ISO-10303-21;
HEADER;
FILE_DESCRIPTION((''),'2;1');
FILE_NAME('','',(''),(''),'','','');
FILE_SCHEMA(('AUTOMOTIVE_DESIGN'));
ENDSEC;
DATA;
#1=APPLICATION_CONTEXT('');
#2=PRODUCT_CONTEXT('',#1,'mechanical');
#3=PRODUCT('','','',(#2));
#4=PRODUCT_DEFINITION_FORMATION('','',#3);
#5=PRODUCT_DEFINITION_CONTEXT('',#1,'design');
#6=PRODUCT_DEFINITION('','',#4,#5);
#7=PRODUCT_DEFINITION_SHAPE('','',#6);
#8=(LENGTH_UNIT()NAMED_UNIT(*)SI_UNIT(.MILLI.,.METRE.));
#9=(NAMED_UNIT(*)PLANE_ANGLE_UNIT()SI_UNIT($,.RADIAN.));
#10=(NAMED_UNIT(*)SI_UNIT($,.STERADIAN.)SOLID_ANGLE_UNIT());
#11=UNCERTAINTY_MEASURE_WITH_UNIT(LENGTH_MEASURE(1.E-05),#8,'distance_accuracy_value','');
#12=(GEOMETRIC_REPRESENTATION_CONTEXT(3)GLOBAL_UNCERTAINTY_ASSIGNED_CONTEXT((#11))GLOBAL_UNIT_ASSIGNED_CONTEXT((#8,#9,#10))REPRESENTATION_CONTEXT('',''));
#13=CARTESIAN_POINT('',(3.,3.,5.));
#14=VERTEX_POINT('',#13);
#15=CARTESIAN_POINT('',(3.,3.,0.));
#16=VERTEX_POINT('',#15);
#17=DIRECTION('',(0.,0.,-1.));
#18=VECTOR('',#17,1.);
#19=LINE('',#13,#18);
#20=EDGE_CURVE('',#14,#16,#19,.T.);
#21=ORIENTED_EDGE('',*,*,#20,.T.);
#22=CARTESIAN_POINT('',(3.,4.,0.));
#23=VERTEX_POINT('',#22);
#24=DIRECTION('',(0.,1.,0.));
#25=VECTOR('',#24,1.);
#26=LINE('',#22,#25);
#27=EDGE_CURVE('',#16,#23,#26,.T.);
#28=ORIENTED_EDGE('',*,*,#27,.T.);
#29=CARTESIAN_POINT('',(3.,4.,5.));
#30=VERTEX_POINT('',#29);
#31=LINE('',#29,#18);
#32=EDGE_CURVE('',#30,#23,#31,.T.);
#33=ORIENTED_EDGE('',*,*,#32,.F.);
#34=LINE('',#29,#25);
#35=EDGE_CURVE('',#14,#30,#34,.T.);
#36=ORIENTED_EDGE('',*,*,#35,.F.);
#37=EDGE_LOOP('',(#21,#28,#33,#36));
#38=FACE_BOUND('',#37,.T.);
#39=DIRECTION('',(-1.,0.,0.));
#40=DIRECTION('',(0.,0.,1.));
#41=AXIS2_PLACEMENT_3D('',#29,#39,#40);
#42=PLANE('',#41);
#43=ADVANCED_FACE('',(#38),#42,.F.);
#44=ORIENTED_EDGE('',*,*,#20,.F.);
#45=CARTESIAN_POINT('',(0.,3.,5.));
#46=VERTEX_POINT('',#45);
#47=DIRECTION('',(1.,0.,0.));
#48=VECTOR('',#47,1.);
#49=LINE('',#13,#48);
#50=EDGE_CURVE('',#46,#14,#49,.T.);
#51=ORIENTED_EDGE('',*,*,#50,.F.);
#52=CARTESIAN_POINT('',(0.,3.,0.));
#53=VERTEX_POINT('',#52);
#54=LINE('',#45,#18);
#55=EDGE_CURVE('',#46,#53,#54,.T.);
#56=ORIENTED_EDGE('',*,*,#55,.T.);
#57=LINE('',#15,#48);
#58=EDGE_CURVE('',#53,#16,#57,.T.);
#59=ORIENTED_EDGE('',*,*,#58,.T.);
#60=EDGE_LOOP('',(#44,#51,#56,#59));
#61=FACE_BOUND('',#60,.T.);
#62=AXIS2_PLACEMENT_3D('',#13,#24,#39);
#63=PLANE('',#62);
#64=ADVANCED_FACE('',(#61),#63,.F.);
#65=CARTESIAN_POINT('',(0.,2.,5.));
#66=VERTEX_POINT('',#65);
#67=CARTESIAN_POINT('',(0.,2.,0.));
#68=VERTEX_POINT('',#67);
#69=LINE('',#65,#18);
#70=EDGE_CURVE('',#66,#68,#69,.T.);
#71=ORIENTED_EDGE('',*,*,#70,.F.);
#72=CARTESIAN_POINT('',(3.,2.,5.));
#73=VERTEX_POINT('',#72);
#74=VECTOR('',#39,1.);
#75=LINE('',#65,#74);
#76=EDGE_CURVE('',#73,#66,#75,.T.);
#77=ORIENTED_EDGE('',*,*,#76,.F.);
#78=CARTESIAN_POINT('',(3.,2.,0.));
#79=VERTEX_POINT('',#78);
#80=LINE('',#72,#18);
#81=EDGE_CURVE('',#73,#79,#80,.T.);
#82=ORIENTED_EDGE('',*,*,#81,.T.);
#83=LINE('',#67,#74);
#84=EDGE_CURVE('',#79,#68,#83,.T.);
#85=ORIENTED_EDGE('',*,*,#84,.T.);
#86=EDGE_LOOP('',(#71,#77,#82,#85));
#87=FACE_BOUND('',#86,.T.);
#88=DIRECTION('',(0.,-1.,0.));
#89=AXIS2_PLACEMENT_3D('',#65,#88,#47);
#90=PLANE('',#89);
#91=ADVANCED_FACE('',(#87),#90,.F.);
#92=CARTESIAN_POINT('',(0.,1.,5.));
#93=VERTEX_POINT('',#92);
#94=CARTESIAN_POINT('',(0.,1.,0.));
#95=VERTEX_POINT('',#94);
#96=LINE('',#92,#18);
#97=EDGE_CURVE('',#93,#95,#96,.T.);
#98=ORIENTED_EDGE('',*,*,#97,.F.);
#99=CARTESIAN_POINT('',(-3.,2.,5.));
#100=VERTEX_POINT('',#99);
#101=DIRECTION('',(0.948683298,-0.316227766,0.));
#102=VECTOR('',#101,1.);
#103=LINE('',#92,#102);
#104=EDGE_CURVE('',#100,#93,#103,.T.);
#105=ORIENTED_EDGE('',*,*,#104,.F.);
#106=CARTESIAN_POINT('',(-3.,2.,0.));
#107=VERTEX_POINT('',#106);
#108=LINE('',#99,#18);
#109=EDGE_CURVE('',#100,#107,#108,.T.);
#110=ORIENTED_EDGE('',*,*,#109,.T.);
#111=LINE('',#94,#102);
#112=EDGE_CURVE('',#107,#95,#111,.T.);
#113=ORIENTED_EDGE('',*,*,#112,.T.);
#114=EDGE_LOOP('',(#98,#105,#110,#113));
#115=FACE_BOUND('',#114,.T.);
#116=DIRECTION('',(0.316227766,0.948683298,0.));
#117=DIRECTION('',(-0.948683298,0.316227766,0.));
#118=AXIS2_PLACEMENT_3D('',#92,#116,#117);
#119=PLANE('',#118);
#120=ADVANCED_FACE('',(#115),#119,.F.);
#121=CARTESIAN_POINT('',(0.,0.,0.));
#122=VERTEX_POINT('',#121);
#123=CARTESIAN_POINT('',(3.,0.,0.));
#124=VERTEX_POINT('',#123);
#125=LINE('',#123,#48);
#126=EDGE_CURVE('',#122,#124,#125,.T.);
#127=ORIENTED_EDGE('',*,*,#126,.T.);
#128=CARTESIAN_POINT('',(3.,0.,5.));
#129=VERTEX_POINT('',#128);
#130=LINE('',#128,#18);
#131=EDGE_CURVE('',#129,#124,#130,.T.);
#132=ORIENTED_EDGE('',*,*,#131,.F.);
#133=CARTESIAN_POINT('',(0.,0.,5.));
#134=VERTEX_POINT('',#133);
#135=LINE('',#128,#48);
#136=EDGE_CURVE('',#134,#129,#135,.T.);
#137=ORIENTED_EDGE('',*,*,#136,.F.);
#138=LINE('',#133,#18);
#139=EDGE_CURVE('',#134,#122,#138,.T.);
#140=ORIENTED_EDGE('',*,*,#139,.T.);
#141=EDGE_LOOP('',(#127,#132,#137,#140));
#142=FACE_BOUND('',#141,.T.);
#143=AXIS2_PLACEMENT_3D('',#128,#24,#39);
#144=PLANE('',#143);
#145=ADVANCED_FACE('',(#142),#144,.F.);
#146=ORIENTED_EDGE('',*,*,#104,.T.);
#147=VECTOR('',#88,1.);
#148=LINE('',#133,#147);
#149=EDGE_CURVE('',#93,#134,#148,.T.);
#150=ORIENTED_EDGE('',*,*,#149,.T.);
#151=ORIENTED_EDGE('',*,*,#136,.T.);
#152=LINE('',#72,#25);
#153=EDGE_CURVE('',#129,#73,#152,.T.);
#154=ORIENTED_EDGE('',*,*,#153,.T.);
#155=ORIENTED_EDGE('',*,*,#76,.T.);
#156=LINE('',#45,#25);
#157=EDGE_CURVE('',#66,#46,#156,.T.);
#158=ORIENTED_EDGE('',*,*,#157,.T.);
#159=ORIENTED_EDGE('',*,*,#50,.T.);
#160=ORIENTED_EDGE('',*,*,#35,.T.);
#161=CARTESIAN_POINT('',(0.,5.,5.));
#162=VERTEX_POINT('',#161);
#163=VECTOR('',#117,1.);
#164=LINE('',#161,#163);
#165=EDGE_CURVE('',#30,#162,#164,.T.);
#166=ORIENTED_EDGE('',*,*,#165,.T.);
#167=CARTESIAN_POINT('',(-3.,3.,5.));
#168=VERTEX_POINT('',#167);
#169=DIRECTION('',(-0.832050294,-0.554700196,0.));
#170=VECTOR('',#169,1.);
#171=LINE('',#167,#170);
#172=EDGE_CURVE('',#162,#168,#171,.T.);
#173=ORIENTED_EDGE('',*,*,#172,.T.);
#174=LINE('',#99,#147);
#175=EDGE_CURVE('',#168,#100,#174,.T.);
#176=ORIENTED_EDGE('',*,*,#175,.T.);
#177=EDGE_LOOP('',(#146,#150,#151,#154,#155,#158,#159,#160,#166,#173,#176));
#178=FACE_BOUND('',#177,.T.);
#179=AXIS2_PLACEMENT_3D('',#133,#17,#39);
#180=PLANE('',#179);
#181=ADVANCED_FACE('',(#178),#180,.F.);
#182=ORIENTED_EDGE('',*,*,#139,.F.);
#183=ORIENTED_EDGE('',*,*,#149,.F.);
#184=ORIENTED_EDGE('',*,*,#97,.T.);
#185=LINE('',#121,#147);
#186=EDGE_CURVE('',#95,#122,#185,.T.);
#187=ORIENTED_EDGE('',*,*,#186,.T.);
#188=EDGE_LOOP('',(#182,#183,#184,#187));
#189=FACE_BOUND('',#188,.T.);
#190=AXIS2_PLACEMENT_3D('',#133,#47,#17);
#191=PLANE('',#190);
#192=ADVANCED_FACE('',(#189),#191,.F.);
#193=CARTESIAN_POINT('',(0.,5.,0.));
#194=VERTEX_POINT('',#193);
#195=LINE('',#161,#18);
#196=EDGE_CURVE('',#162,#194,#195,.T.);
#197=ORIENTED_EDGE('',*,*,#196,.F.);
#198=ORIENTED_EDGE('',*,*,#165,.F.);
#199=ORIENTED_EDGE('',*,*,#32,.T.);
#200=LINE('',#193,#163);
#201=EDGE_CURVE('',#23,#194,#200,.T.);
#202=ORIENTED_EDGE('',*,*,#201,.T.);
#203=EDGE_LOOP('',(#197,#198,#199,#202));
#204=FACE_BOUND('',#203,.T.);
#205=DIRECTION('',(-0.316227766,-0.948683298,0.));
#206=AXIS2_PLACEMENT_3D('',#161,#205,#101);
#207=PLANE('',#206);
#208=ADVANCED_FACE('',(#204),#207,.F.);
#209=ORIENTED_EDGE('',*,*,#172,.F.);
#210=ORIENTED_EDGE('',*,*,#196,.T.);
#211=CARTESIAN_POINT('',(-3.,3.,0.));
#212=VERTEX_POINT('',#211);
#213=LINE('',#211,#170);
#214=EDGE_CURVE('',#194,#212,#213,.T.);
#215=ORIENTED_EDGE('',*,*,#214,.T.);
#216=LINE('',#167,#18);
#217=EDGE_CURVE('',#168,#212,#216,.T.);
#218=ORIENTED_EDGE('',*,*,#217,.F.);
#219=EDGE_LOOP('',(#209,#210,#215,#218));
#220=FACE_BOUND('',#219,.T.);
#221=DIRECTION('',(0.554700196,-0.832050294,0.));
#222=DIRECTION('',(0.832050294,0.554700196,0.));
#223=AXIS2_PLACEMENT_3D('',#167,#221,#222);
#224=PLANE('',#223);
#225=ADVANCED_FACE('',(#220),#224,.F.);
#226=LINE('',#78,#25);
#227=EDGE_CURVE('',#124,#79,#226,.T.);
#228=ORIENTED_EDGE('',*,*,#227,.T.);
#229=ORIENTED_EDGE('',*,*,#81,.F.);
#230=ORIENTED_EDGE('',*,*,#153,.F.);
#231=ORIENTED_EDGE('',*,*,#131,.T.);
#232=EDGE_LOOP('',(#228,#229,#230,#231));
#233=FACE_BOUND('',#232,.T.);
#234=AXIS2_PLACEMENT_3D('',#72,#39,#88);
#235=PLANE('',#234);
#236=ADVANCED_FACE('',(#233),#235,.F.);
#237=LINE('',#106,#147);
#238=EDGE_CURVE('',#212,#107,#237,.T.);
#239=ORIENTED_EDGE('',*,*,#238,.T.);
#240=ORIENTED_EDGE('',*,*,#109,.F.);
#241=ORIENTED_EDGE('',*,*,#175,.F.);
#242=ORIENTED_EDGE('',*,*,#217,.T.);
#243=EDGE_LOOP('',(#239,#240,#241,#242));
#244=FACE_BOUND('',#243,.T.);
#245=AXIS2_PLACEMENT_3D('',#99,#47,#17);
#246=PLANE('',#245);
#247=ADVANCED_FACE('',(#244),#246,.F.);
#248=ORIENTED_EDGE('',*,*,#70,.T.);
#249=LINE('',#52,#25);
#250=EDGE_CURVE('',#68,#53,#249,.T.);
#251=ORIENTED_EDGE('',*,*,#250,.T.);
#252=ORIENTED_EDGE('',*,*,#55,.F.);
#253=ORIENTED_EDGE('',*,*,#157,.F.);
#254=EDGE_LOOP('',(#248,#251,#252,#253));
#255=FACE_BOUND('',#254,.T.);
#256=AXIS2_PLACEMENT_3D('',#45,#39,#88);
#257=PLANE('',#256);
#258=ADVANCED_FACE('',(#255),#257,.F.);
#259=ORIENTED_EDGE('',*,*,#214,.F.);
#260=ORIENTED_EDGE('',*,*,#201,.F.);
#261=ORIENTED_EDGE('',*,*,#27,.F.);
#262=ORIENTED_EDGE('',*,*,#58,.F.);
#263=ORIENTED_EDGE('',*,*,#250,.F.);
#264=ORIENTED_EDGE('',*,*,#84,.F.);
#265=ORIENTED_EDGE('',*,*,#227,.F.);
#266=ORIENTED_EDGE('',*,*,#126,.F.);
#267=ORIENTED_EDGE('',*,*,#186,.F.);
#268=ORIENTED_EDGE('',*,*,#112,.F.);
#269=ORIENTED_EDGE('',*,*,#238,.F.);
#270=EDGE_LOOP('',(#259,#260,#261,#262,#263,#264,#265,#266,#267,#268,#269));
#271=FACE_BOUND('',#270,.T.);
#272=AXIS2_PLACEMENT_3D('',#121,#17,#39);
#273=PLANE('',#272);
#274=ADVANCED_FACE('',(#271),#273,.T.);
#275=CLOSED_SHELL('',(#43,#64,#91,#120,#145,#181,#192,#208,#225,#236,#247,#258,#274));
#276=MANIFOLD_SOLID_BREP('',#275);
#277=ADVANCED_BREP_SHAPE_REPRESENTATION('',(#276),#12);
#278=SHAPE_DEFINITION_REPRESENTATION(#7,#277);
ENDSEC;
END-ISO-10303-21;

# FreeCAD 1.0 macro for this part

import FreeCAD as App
import Part
import Sketcher

V = App.Vector

doc = App.newDocument("Part")
body = doc.addObject("PartDesign::Body", "Body")

sketch1 = body.newObject("Sketcher::SketchObject", "Sketch")
sketch1.AttachmentSupport = (doc.getObject("XY_Plane"), [""])
sketch1.MapMode = "FlatFace"
sketch1.addGeometry([
    Part.LineSegment(V(0, 1, 0), V(0, 0, 0)),
    Part.LineSegment(V(0, 0, 0), V(3, 0, 0)),
    Part.LineSegment(V(3, 0, 0), V(3, 2, 0)),
    Part.LineSegment(V(3, 2, 0), V(0, 2, 0)),
    Part.LineSegment(V(0, 2, 0), V(0, 3, 0)),
    Part.LineSegment(V(0, 3, 0), V(3, 3, 0)),
    Part.LineSegment(V(3, 3, 0), V(3, 4, 0)),
    Part.LineSegment(V(3, 4, 0), V(0, 5, 0)),
    Part.LineSegment(V(0, 5, 0), V(-3, 3, 0)),
    Part.LineSegment(V(-3, 3, 0), V(-3, 2, 0)),
    Part.LineSegment(V(-3, 2, 0), V(0, 1, 0)),
], False)
sketch1.addConstraint([
    Sketcher.Constraint("Coincident", 0, 2, 1, 1),
    Sketcher.Constraint("Coincident", 1, 2, 2, 1),
    Sketcher.Constraint("Coincident", 2, 2, 3, 1),
    Sketcher.Constraint("Coincident", 3, 2, 4, 1),
    Sketcher.Constraint("Coincident", 4, 2, 5, 1),
    Sketcher.Constraint("Coincident", 5, 2, 6, 1),
    Sketcher.Constraint("Coincident", 6, 2, 7, 1),
    Sketcher.Constraint("Coincident", 7, 2, 8, 1),
    Sketcher.Constraint("Coincident", 8, 2, 9, 1),
    Sketcher.Constraint("Coincident", 9, 2, 10, 1),
    Sketcher.Constraint("Coincident", 10, 2, 0, 1),
    Sketcher.Constraint("Vertical", 0),
    Sketcher.Constraint("Horizontal", 1),
    Sketcher.Constraint("Vertical", 2),
    Sketcher.Constraint("Horizontal", 3),
    Sketcher.Constraint("Vertical", 4),
    Sketcher.Constraint("Horizontal", 5),
    Sketcher.Constraint("Vertical", 6),
    Sketcher.Constraint("Vertical", 9),
    Sketcher.Constraint("Coincident", 0, 2, -1, 1),
    Sketcher.Constraint("Symmetric", 5, 2, 8, 2, -2),
    Sketcher.Constraint("Symmetric", 2, 2, 9, 2, -2),
    Sketcher.Constraint("PointOnObject", 3, 2, -2),
    Sketcher.Constraint("PointOnObject", 7, 2, -2),
    Sketcher.Constraint("Parallel", 7, 10),
    Sketcher.Constraint("Equal", 0, 4),
    Sketcher.Constraint("Equal", 4, 6),
    Sketcher.Constraint("DistanceX", 1, 1, 1, 2, 3.0),
    Sketcher.Constraint("DistanceY", 0, 2, 0, 1, 1.0),
    Sketcher.Constraint("DistanceY", 2, 1, 2, 2, 2.0),
])
pad1 = body.newObject("PartDesign::Pad", "Pad")
pad1.Profile = sketch1
pad1.Length = 5

doc.recompute()
